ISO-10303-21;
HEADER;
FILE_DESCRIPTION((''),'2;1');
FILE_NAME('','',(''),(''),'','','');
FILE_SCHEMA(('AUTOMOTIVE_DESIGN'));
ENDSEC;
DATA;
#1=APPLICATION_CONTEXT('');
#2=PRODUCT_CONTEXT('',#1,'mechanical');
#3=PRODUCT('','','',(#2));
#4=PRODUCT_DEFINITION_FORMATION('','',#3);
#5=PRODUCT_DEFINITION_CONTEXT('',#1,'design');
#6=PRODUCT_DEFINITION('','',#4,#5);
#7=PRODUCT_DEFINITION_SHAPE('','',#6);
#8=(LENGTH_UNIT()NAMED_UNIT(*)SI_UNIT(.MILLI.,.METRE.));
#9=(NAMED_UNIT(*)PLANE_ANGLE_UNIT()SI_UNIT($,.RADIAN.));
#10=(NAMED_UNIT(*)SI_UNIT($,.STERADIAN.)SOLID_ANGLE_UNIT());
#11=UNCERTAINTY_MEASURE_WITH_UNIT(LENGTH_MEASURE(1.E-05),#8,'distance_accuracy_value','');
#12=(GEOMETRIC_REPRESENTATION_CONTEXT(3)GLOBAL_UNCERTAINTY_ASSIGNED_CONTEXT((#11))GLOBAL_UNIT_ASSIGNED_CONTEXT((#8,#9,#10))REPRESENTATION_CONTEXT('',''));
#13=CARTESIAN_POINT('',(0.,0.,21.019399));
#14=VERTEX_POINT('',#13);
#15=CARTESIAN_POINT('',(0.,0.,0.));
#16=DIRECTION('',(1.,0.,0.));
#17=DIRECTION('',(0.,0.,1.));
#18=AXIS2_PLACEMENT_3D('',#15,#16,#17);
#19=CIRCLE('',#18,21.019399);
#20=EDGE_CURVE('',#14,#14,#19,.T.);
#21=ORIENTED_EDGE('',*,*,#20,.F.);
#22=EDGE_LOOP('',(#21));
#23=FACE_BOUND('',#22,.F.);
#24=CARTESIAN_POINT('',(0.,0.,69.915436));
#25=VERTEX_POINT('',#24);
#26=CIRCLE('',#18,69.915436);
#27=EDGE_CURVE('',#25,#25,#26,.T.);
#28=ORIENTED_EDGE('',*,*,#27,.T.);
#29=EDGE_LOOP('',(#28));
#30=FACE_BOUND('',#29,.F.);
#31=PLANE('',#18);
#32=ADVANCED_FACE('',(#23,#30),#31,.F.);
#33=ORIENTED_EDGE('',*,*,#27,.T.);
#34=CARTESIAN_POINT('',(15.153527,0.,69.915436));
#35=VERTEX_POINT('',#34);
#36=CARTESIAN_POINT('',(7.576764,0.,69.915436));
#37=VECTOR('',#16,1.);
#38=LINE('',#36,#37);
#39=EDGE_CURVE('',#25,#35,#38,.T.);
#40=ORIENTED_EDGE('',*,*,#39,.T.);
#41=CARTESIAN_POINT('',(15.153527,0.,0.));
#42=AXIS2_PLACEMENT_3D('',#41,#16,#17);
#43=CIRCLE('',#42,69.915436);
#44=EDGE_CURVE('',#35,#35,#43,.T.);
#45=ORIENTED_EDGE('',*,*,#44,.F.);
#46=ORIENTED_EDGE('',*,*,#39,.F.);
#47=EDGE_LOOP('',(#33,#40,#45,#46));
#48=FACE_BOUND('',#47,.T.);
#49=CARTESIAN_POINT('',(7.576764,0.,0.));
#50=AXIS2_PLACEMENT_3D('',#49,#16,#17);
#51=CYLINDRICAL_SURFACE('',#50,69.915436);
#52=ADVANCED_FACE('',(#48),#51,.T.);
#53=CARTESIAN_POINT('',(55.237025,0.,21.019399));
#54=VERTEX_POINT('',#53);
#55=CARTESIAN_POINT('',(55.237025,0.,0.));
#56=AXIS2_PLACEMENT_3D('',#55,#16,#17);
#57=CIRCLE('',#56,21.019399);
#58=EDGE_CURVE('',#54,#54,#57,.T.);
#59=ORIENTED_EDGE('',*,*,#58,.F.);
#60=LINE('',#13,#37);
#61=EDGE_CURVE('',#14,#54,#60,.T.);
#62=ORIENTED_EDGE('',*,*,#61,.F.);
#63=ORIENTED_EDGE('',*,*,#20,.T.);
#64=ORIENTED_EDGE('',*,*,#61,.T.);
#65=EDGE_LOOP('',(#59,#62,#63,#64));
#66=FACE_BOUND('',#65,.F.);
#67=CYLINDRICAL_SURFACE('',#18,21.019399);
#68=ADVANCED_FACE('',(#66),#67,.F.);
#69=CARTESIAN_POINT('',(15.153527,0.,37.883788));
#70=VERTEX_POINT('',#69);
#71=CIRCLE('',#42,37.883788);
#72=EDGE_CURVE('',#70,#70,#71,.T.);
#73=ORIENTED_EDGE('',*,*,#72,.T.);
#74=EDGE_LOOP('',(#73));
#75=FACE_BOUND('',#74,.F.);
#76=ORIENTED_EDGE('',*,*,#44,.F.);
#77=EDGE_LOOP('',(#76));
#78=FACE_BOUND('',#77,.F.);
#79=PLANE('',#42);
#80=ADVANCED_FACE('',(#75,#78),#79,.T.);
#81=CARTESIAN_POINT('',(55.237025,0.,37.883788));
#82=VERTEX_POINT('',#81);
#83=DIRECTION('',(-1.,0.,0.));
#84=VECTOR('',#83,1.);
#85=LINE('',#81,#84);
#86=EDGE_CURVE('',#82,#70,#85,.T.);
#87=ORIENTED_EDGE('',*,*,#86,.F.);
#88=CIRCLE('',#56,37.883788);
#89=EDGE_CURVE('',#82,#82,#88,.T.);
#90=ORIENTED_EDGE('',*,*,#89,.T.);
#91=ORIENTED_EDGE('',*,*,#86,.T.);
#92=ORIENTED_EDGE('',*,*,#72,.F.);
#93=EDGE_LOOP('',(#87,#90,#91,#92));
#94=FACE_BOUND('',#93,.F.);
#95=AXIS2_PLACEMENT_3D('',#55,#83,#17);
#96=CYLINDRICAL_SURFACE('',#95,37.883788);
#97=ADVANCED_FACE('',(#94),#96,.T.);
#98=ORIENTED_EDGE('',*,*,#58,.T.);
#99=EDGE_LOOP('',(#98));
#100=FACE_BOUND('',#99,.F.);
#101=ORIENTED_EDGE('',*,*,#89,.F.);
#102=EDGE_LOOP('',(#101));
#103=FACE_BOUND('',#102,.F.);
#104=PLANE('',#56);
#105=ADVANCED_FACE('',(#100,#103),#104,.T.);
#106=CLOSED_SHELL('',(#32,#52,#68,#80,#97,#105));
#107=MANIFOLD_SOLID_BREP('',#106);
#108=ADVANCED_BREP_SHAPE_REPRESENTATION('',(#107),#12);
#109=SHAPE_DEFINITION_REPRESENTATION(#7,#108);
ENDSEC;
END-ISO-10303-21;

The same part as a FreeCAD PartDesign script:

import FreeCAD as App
import Part
import Sketcher
from FreeCAD import Vector
Q = App.Units.Quantity

doc = App.newDocument("Part")
params = doc.addObject("Spreadsheet::Sheet", "Params")
for row, (alias, value) in enumerate([
    ("revolution_angle", "360 deg"),
], start=1):
    params.set(f"A{row}", alias)
    params.set(f"B{row}", "=" + value)
    params.setAlias(f"B{row}", alias)

body = doc.addObject("PartDesign::Body", "Body")

# Sketch on XZ plane
sketch1 = body.newObject("Sketcher::SketchObject", "Sketch")
sketch1.AttachmentSupport = (doc.getObject("XZ_Plane"), [""])
sketch1.MapMode = "FlatFace"
sketch1.addGeometry([
    Part.LineSegment(Vector(0, 21.019399, 0), Vector(55.237025, 21.019399, 0)),  # 0
    Part.LineSegment(Vector(55.237025, 21.019399, 0), Vector(55.237025, 37.883788, 0)),  # 1
    Part.LineSegment(Vector(55.237025, 37.883788, 0), Vector(15.153527, 37.883788, 0)),  # 2
    Part.LineSegment(Vector(15.153527, 37.883788, 0), Vector(15.153527, 69.915436, 0)),  # 3
    Part.LineSegment(Vector(15.153527, 69.915436, 0), Vector(0, 69.915436, 0)),  # 4
    Part.LineSegment(Vector(0, 69.915436, 0), Vector(0, 21.019399, 0)),  # 5
], False)
sketch1.addConstraint([
    Sketcher.Constraint("Coincident", 0, 2, 1, 1),
    Sketcher.Constraint("Coincident", 1, 2, 2, 1),
    Sketcher.Constraint("Coincident", 2, 2, 3, 1),
    Sketcher.Constraint("Coincident", 3, 2, 4, 1),
    Sketcher.Constraint("Coincident", 4, 2, 5, 1),
    Sketcher.Constraint("Coincident", 5, 2, 0, 1),
    Sketcher.Constraint("Horizontal", 0),
    Sketcher.Constraint("Vertical", 1),
    Sketcher.Constraint("Horizontal", 2),
    Sketcher.Constraint("Vertical", 3),
    Sketcher.Constraint("Horizontal", 4),
    Sketcher.Constraint("Vertical", 5),
    Sketcher.Constraint("PointOnObject", 4, 2, -2),
    Sketcher.Constraint("DistanceY", 1, 1, 1, 2, Q("16.864389 mm")),
    Sketcher.Constraint("DistanceY", -1, 1, 0, 2, Q("21.019399 mm")),
    Sketcher.Constraint("DistanceX", 0, 1, 0, 2, Q("55.237025 mm")),
    Sketcher.Constraint("DistanceX", 2, 2, 2, 1, Q("40.083498 mm")),
    Sketcher.Constraint("DistanceY", 3, 1, 3, 2, Q("32.031648 mm")),
])
revolution = body.newObject("PartDesign::Revolution", "Revolution")
revolution.Profile = sketch1
revolution.ReferenceAxis = (sketch1, ["H_Axis"])
revolution.setExpression("Angle", "Params.revolution_angle")

doc.recompute()
